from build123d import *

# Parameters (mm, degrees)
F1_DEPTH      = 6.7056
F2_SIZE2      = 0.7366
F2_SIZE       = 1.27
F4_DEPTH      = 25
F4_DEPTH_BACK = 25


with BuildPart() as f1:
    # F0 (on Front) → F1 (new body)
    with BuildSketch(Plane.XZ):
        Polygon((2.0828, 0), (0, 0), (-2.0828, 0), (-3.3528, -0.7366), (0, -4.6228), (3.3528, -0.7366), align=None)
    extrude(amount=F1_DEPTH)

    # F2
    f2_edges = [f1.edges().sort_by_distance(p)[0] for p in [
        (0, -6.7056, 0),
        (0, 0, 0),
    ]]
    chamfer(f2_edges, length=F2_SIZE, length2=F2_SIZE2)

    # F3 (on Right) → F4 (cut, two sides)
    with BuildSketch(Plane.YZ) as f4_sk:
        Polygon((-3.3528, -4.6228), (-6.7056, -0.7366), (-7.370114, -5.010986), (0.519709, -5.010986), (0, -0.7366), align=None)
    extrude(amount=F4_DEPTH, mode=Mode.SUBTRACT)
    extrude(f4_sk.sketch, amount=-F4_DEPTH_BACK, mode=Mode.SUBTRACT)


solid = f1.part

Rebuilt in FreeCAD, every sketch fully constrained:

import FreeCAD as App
import Part
import Sketcher
Q = App.Units.Quantity


def edges_at(feature, points):
    """Names of the edges that pass closest to the given points."""
    edges = feature.Shape.Edges
    near = lambda p: min(range(len(edges)), key=lambda i: edges[i].distToShape(Part.Vertex(*p))[0])
    return sorted({f"Edge{near(p) + 1}" for p in points})

doc = App.newDocument("Part")
body = doc.addObject("PartDesign::Body", "Body")

# Sketch on XZ plane
sketch1 = body.newObject("Sketcher::SketchObject", "Sketch")
sketch1.AttachmentSupport = (doc.getObject("XZ_Plane"), [""])
sketch1.MapMode = "FlatFace"
sketch1.addGeometry(Part.LineSegment(App.Vector(2.0828, 0, 0), App.Vector(-2.0828, 0, 0)), False)
sketch1.addGeometry(Part.LineSegment(App.Vector(-2.0828, 0, 0), App.Vector(-3.3528, -0.7366, 0)), False)
sketch1.addGeometry(Part.LineSegment(App.Vector(-3.3528, -0.7366, 0), App.Vector(0, -4.6228, 0)), False)
sketch1.addGeometry(Part.LineSegment(App.Vector(0, -4.6228, 0), App.Vector(3.3528, -0.7366, 0)), False)
sketch1.addGeometry(Part.LineSegment(App.Vector(3.3528, -0.7366, 0), App.Vector(2.0828, 0, 0)), False)
sketch1.addConstraint(Sketcher.Constraint("Coincident", 0, 2, 1, 1))
sketch1.addConstraint(Sketcher.Constraint("Coincident", 1, 2, 2, 1))
sketch1.addConstraint(Sketcher.Constraint("Coincident", 2, 2, 3, 1))
sketch1.addConstraint(Sketcher.Constraint("Coincident", 3, 2, 4, 1))
sketch1.addConstraint(Sketcher.Constraint("Coincident", 4, 2, 0, 1))
sketch1.addConstraint(Sketcher.Constraint("Horizontal", 0))
sketch1.addConstraint(Sketcher.Constraint("Symmetric", 0, 2, 4, 2, -1, 1))
sketch1.addConstraint(Sketcher.Constraint("Symmetric", 1, 2, 3, 2, -2))
sketch1.addConstraint(Sketcher.Constraint("PointOnObject", 2, 2, -2))
sketch1.addConstraint(Sketcher.Constraint("DistanceX", 0, 2, 0, 1, Q("0.164 in")))
sketch1.addConstraint(Sketcher.Constraint("DistanceX", 1, 2, 0, 2, Q("0.05 in")))
sketch1.addConstraint(Sketcher.Constraint("DistanceY", 1, 2, -1, 1, Q("0.029 in")))
sketch1.addConstraint(Sketcher.Constraint("DistanceY", 2, 2, -1, 1, Q("0.182 in")))
pad1 = body.newObject("PartDesign::Pad", "Pad")
pad1.Profile = sketch1
pad1.Length = Q("0.264 in")
doc.recompute()

chamfer = body.newObject("PartDesign::Chamfer", "Chamfer")
chamfer.Base = (pad1, edges_at(pad1, [(0, -6.706, 0), (0, 0, 0)]))
chamfer.ChamferType = "Two distances"
chamfer.Size = Q("0.05 in")
chamfer.Size2 = Q("0.029 in")

# Sketch on YZ plane
sketch2 = body.newObject("Sketcher::SketchObject", "Sketch001")
sketch2.AttachmentSupport = (doc.getObject("YZ_Plane"), [""])
sketch2.MapMode = "FlatFace"
sketch2.addGeometry(Part.LineSegment(App.Vector(-3.3528, -4.6228, 0), App.Vector(-6.7056, -0.7366, 0)), False)
sketch2.addGeometry(Part.LineSegment(App.Vector(-6.7056, -0.7366, 0), App.Vector(-7.370114, -5.010986, 0)), False)
sketch2.addGeometry(Part.LineSegment(App.Vector(-7.370114, -5.010986, 0), App.Vector(0.519709, -5.010986, 0)), False)
sketch2.addGeometry(Part.LineSegment(App.Vector(0.519709, -5.010986, 0), App.Vector(0, -0.7366, 0)), False)
sketch2.addGeometry(Part.LineSegment(App.Vector(0, -0.7366, 0), App.Vector(-3.3528, -4.6228, 0)), False)
sketch2.addConstraint(Sketcher.Constraint("Coincident", 0, 2, 1, 1))
sketch2.addConstraint(Sketcher.Constraint("Coincident", 1, 2, 2, 1))
sketch2.addConstraint(Sketcher.Constraint("Coincident", 2, 2, 3, 1))
sketch2.addConstraint(Sketcher.Constraint("Coincident", 3, 2, 4, 1))
sketch2.addConstraint(Sketcher.Constraint("Coincident", 4, 2, 0, 1))
sketch2.addConstraint(Sketcher.Constraint("Horizontal", 2))
sketch2.addConstraint(Sketcher.Constraint("PointOnObject", 3, 2, -2))
sketch2.addConstraint(Sketcher.Constraint("Horizontal", 0, 2, 3, 2))
sketch2.addConstraint(Sketcher.Constraint("Equal", 0, 4))
sketch2.addConstraint(Sketcher.Constraint("DistanceX", 0, 2, -1, 1, Q("0.264 in")))
sketch2.addConstraint(Sketcher.Constraint("DistanceY", 0, 2, -1, 1, Q("0.029 in")))
sketch2.addConstraint(Sketcher.Constraint("DistanceY", 4, 2, -1, 1, Q("0.182 in")))
sketch2.addConstraint(Sketcher.Constraint("Distance", 1, 4.325732))
sketch2.addConstraint(Sketcher.Constraint("DistanceX", 2, 1, 2, 2, 7.889823))
sketch2.addConstraint(Sketcher.Constraint("DistanceX", -1, 1, 2, 2, 0.519709))
pocket1 = body.newObject("PartDesign::Pocket", "Pocket")
pocket1.Profile = sketch2
pocket1.Type = "ThroughAll"
pocket1.Midplane = True

doc.recompute()
